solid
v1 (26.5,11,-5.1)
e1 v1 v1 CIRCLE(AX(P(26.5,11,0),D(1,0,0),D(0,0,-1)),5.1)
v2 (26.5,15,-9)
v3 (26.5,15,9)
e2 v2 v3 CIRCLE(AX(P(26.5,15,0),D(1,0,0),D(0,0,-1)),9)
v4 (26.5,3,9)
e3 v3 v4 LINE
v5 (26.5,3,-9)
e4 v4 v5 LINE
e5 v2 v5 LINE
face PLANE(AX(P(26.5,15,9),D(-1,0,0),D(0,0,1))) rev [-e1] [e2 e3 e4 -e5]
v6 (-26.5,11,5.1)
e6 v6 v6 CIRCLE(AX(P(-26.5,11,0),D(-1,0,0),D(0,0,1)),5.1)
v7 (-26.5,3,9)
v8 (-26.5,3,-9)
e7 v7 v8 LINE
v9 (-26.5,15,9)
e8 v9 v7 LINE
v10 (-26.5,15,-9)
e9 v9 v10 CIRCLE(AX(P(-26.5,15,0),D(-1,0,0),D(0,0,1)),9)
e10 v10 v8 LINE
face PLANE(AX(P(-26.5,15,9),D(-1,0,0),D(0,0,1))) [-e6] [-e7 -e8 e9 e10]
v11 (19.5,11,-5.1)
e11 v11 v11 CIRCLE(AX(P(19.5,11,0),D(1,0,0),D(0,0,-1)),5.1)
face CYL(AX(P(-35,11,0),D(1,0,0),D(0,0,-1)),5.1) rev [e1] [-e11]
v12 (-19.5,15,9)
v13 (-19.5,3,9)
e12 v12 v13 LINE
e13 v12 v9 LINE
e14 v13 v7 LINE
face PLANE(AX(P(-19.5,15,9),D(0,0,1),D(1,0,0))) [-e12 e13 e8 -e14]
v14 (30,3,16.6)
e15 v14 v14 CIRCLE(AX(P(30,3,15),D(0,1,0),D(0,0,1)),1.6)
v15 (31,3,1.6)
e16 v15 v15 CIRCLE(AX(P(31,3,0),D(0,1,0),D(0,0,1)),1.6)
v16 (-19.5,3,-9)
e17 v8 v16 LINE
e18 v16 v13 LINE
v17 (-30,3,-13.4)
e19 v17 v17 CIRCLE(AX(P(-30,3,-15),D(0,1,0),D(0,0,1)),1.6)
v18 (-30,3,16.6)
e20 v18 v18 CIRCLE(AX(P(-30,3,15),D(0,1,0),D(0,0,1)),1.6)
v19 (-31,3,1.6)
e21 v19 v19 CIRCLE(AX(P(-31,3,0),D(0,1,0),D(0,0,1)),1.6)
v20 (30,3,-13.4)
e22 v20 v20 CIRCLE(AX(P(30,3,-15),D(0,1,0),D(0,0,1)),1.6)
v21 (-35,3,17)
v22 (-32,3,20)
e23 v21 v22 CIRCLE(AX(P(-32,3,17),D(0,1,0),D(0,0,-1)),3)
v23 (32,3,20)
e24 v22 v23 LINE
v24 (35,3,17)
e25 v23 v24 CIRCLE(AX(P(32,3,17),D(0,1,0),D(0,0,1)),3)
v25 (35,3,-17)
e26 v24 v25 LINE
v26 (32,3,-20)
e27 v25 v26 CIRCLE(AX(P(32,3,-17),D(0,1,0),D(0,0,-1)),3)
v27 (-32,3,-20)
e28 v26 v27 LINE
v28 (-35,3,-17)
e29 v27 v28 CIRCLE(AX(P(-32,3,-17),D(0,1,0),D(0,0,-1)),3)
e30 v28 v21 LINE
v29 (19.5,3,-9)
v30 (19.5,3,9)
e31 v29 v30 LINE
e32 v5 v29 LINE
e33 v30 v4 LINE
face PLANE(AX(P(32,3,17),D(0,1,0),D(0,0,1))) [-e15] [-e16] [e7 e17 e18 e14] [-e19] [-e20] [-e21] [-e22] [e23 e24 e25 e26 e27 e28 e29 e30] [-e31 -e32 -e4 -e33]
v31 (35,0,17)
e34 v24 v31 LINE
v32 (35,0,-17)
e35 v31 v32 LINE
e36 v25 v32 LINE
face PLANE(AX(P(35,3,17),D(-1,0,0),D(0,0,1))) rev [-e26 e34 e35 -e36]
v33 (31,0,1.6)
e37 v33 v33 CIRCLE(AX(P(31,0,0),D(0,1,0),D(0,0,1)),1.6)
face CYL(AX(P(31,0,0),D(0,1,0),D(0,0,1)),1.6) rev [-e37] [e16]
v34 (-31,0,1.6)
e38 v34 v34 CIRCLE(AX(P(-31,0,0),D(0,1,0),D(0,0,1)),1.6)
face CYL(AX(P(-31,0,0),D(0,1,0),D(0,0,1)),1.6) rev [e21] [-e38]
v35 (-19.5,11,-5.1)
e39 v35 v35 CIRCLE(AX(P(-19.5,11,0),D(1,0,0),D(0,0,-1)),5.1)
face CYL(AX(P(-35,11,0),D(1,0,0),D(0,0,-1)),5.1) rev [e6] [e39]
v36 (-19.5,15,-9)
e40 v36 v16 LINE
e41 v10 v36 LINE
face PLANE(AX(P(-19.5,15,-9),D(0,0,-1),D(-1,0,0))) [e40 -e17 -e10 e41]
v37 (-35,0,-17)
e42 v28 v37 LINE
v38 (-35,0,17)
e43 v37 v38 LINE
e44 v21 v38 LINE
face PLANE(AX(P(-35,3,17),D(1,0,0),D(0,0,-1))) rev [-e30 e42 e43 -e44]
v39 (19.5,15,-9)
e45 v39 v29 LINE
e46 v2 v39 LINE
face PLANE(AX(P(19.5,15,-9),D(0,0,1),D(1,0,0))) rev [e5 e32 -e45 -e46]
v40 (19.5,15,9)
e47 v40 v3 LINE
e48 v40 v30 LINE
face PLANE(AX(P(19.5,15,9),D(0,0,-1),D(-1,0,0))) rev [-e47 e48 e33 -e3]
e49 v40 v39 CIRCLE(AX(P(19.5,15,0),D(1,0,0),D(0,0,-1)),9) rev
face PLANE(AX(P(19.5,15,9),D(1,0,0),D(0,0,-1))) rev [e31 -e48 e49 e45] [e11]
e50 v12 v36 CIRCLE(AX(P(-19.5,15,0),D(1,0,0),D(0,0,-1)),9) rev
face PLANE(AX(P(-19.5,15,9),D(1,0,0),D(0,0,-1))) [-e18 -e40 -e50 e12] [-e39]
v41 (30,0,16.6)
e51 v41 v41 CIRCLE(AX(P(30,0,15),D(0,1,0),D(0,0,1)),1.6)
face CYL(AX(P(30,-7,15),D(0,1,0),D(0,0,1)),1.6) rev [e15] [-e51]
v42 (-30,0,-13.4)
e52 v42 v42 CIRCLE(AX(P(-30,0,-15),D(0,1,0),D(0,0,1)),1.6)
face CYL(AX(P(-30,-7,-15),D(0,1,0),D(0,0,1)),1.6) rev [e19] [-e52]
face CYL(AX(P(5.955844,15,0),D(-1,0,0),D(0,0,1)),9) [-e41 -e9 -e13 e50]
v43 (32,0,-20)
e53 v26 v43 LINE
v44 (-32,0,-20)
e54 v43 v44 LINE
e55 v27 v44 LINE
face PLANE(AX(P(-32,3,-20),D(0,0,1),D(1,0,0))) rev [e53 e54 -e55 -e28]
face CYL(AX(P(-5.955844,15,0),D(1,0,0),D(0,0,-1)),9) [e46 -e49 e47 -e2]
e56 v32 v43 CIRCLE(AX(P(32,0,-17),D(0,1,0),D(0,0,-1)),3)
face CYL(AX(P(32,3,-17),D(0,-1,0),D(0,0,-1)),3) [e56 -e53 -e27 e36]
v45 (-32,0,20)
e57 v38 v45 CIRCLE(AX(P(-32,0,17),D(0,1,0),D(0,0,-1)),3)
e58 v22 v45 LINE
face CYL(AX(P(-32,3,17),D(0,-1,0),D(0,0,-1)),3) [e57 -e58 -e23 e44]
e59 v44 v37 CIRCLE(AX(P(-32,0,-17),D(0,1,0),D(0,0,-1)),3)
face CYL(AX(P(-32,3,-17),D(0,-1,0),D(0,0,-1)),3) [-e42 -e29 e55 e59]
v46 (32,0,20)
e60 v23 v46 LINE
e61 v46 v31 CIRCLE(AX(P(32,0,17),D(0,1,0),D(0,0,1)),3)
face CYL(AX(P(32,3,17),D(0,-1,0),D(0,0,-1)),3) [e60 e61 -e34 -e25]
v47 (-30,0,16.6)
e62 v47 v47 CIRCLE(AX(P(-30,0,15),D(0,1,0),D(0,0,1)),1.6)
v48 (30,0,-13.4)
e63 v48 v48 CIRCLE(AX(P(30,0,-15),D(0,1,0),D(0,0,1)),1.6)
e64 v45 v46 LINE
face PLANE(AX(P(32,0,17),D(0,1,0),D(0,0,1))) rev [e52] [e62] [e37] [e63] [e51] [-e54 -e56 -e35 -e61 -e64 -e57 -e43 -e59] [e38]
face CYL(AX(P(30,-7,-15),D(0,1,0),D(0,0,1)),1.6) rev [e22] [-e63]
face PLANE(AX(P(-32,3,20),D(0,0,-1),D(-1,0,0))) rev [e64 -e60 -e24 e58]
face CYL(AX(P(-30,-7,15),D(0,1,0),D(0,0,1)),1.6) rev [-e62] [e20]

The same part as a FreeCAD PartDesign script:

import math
import FreeCAD as App
import Part
import Sketcher


def add_polygon(sketch, points):
    """Adds a closed chain of lines whose ends are joined by coincident constraints."""
    first, n = sketch.GeometryCount, len(points)
    for a, b in zip(points, points[1:] + points[:1]):
        sketch.addGeometry(Part.LineSegment(App.Vector(*a, 0), App.Vector(*b, 0)), False)
    for i in range(n):
        sketch.addConstraint(Sketcher.Constraint("Coincident", first + i, 2, first + (i + 1) % n, 1))

doc = App.newDocument("Part")
body = doc.addObject("PartDesign::Body", "Body")

# Sketch on XZ plane
sketch1 = doc.addObject("Sketcher::SketchObject", "Sketch")
body.addObject(sketch1)
sketch1.AttachmentSupport = (doc.XZ_Plane, [""])
sketch1.MapMode = "FlatFace"
sketch1.addGeometry(Part.LineSegment(App.Vector(-32, 20, 0), App.Vector(32, 20, 0)), False)
sketch1.addGeometry(Part.ArcOfCircle(Part.Circle(App.Vector(32, 17, 0), App.Vector(0, 0, 1), 3), math.radians(0), math.radians(90)), False)
sketch1.addGeometry(Part.LineSegment(App.Vector(35, 17, 0), App.Vector(35, -17, 0)), False)
sketch1.addGeometry(Part.ArcOfCircle(Part.Circle(App.Vector(32, -17, 0), App.Vector(0, 0, 1), 3), math.radians(-90), math.radians(0)), False)
sketch1.addGeometry(Part.LineSegment(App.Vector(32, -20, 0), App.Vector(-32, -20, 0)), False)
sketch1.addGeometry(Part.ArcOfCircle(Part.Circle(App.Vector(-32, -17, 0), App.Vector(0, 0, 1), 3), math.radians(180), math.radians(270)), False)
sketch1.addGeometry(Part.LineSegment(App.Vector(-35, -17, 0), App.Vector(-35, 17, 0)), False)
sketch1.addGeometry(Part.ArcOfCircle(Part.Circle(App.Vector(-32, 17, 0), App.Vector(0, 0, 1), 3), math.radians(90), math.radians(180)), False)
sketch1.addConstraint(Sketcher.Constraint("Tangent", 0, 2, 1, 2))
sketch1.addConstraint(Sketcher.Constraint("Tangent", 1, 1, 2, 1))
sketch1.addConstraint(Sketcher.Constraint("Tangent", 2, 2, 3, 2))
sketch1.addConstraint(Sketcher.Constraint("Tangent", 3, 1, 4, 1))
sketch1.addConstraint(Sketcher.Constraint("Tangent", 4, 2, 5, 2))
sketch1.addConstraint(Sketcher.Constraint("Tangent", 5, 1, 6, 1))
sketch1.addConstraint(Sketcher.Constraint("Tangent", 6, 2, 7, 2))
sketch1.addConstraint(Sketcher.Constraint("Tangent", 7, 1, 0, 1))
sketch1.addConstraint(Sketcher.Constraint("Horizontal", 0))
sketch1.addConstraint(Sketcher.Constraint("Vertical", 2))
sketch1.addConstraint(Sketcher.Constraint("Horizontal", 4))
sketch1.addConstraint(Sketcher.Constraint("Vertical", 6))
sketch1.addConstraint(Sketcher.Constraint("Equal", 1, 3))
sketch1.addConstraint(Sketcher.Constraint("Equal", 3, 5))
sketch1.addConstraint(Sketcher.Constraint("Equal", 5, 7))
sketch1.addConstraint(Sketcher.Constraint("Symmetric", 1, 3, 5, 3, -1, 1))
sketch1.addConstraint(Sketcher.Constraint("Radius", 1, 3.0))
sketch1.addConstraint(Sketcher.Constraint("DistanceX", 0, 1, 0, 2, 64.0))
sketch1.addConstraint(Sketcher.Constraint("DistanceY", 2, 2, 2, 1, 34.0))
pad1 = doc.addObject("PartDesign::Pad", "Pad")
body.addObject(pad1)
pad1.Profile = sketch1
pad1.Length = 3
pad1.Reversed = True

# Sketch on XZ plane
sketch2 = doc.addObject("Sketcher::SketchObject", "Sketch001")
body.addObject(sketch2)
sketch2.AttachmentSupport = (doc.XZ_Plane, [""])
sketch2.MapMode = "FlatFace"
sketch2.AttachmentOffset = App.Placement(App.Vector(0, 0, -3), App.Rotation())
add_polygon(sketch2, [(19.5, -9), (19.5, 9), (26.5, 9), (26.5, -9)])  # lines 0-3
sketch2.addConstraint(Sketcher.Constraint("Vertical", 0))
sketch2.addConstraint(Sketcher.Constraint("Horizontal", 1))
sketch2.addConstraint(Sketcher.Constraint("Vertical", 2))
sketch2.addConstraint(Sketcher.Constraint("Horizontal", 3))
sketch2.addConstraint(Sketcher.Constraint("DistanceX", 1, 1, 1, 2, 7.0))
sketch2.addConstraint(Sketcher.Constraint("DistanceY", 0, 1, 0, 2, 18.0))
sketch2.addConstraint(Sketcher.Constraint("DistanceY", -1, 1, 0, 2, 9.0))
sketch2.addConstraint(Sketcher.Constraint("DistanceX", -1, 1, 0, 2, 19.5))
pad2 = doc.addObject("PartDesign::Pad", "Pad001")
body.addObject(pad2)
pad2.Profile = sketch2
pad2.Length = 12
pad2.Reversed = True
doc.recompute()

mirrored = doc.addObject("PartDesign::Mirrored", "Mirrored")
body.addObject(mirrored)
mirrored.Originals = [pad2]
mirrored.MirrorPlane = (doc.YZ_Plane, [""])
body.Tip = mirrored

# Sketch on YZ plane
sketch3 = doc.addObject("Sketcher::SketchObject", "Sketch002")
body.addObject(sketch3)
sketch3.AttachmentSupport = (doc.YZ_Plane, [""])
sketch3.MapMode = "FlatFace"
sketch3.AttachmentOffset = App.Placement(App.Vector(0, 0, 26.5), App.Rotation())
sketch3.addGeometry(Part.Circle(App.Vector(15, 0, 0), App.Vector(0, 0, 1), 9), False)
sketch3.addConstraint(Sketcher.Constraint("PointOnObject", 0, 3, -1))
sketch3.addConstraint(Sketcher.Constraint("Diameter", 0, 18.0))
sketch3.addConstraint(Sketcher.Constraint("DistanceX", -1, 1, 0, 3, 15.0))
pad3 = doc.addObject("PartDesign::Pad", "Pad002")
body.addObject(pad3)
pad3.Profile = sketch3
pad3.Length = 7
pad3.Reversed = True

# Sketch on YZ plane
sketch4 = doc.addObject("Sketcher::SketchObject", "Sketch003")
body.addObject(sketch4)
sketch4.AttachmentSupport = (doc.YZ_Plane, [""])
sketch4.MapMode = "FlatFace"
sketch4.AttachmentOffset = App.Placement(App.Vector(0, 0, -19.5), App.Rotation())
sketch4.addGeometry(Part.Circle(App.Vector(15, 0, 0), App.Vector(0, 0, 1), 9), False)
sketch4.addConstraint(Sketcher.Constraint("PointOnObject", 0, 3, -1))
sketch4.addConstraint(Sketcher.Constraint("Diameter", 0, 18.0))
sketch4.addConstraint(Sketcher.Constraint("DistanceX", -1, 1, 0, 3, 15.0))
pad4 = doc.addObject("PartDesign::Pad", "Pad003")
body.addObject(pad4)
pad4.Profile = sketch4
pad4.Length = 7
pad4.Reversed = True

# Sketch on YZ plane
sketch5 = doc.addObject("Sketcher::SketchObject", "Sketch004")
body.addObject(sketch5)
sketch5.AttachmentSupport = (doc.YZ_Plane, [""])
sketch5.MapMode = "FlatFace"
sketch5.AttachmentOffset = App.Placement(App.Vector(0, 0, 26.5), App.Rotation())
sketch5.addGeometry(Part.Circle(App.Vector(11, 0, 0), App.Vector(0, 0, 1), 5), False)
sketch5.addConstraint(Sketcher.Constraint("PointOnObject", 0, 3, -1))
sketch5.addConstraint(Sketcher.Constraint("Diameter", 0, 10.0))
sketch5.addConstraint(Sketcher.Constraint("DistanceX", -1, 1, 0, 3, 11.0))
pocket1 = doc.addObject("PartDesign::Pocket", "Pocket")
body.addObject(pocket1)
pocket1.Profile = sketch5
pocket1.Type = "ThroughAll"

# Sketch on XZ plane
sketch6 = doc.addObject("Sketcher::SketchObject", "Sketch005")
body.addObject(sketch6)
sketch6.AttachmentSupport = (doc.XZ_Plane, [""])
sketch6.MapMode = "FlatFace"
sketch6.AttachmentOffset = App.Placement(App.Vector(0, 0, -3), App.Rotation())
sketch6.addGeometry(Part.Circle(App.Vector(-31, 0, 0), App.Vector(0, 0, 1), 1.6), False)
sketch6.addGeometry(Part.Circle(App.Vector(31, 0, 0), App.Vector(0, 0, 1), 1.6), False)
sketch6.addConstraint(Sketcher.Constraint("Equal", 0, 1))
sketch6.addConstraint(Sketcher.Constraint("Symmetric", 0, 3, 1, 3, -1, 1))
sketch6.addConstraint(Sketcher.Constraint("PointOnObject", 0, 3, -1))
sketch6.addConstraint(Sketcher.Constraint("Diameter", 0, 3.2))
sketch6.addConstraint(Sketcher.Constraint("DistanceX", 0, 3, -1, 1, 31.0))
pocket2 = doc.addObject("PartDesign::Pocket", "Pocket001")
body.addObject(pocket2)
pocket2.Profile = sketch6
pocket2.Type = "ThroughAll"
pocket2.Reversed = True

# Sketch on XZ plane
sketch7 = doc.addObject("Sketcher::SketchObject", "Sketch006")
body.addObject(sketch7)
sketch7.AttachmentSupport = (doc.XZ_Plane, [""])
sketch7.MapMode = "FlatFace"
sketch7.AttachmentOffset = App.Placement(App.Vector(0, 0, -3), App.Rotation())
sketch7.addGeometry(Part.Circle(App.Vector(-30, -15, 0), App.Vector(0, 0, 1), 1.6), False)
sketch7.addGeometry(Part.Circle(App.Vector(30, -15, 0), App.Vector(0, 0, 1), 1.6), False)
sketch7.addGeometry(Part.Circle(App.Vector(30, 15, 0), App.Vector(0, 0, 1), 1.6), False)
sketch7.addGeometry(Part.Circle(App.Vector(-30, 15, 0), App.Vector(0, 0, 1), 1.6), False)
sketch7.addConstraint(Sketcher.Constraint("Equal", 0, 1))
sketch7.addConstraint(Sketcher.Constraint("Equal", 1, 2))
sketch7.addConstraint(Sketcher.Constraint("Equal", 2, 3))
sketch7.addConstraint(Sketcher.Constraint("Symmetric", 0, 3, 2, 3, -1, 1))
sketch7.addConstraint(Sketcher.Constraint("Symmetric", 1, 3, 3, 3, -1, 1))
sketch7.addConstraint(Sketcher.Constraint("Symmetric", 0, 3, 1, 3, -2))
sketch7.addConstraint(Sketcher.Constraint("Diameter", 0, 3.2))
sketch7.addConstraint(Sketcher.Constraint("DistanceX", 0, 3, -1, 1, 30.0))
sketch7.addConstraint(Sketcher.Constraint("DistanceY", 0, 3, -1, 1, 15.0))
pocket3 = doc.addObject("PartDesign::Pocket", "Pocket002")
body.addObject(pocket3)
pocket3.Profile = sketch7
pocket3.Length = 10
pocket3.Reversed = True

# Sketch on YZ plane
sketch8 = doc.addObject("Sketcher::SketchObject", "Sketch007")
body.addObject(sketch8)
sketch8.AttachmentSupport = (doc.YZ_Plane, [""])
sketch8.MapMode = "FlatFace"
sketch8.AttachmentOffset = App.Placement(App.Vector(0, 0, 26.5), App.Rotation())
sketch8.addGeometry(Part.Circle(App.Vector(11, 0, 0), App.Vector(0, 0, 1), 5.1), False)
sketch8.addConstraint(Sketcher.Constraint("PointOnObject", 0, 3, -1))
sketch8.addConstraint(Sketcher.Constraint("Diameter", 0, 10.2))
sketch8.addConstraint(Sketcher.Constraint("DistanceX", -1, 1, 0, 3, 11.0))
pocket4 = doc.addObject("PartDesign::Pocket", "Pocket003")
body.addObject(pocket4)
pocket4.Profile = sketch8
pocket4.Type = "ThroughAll"

doc.recompute()
